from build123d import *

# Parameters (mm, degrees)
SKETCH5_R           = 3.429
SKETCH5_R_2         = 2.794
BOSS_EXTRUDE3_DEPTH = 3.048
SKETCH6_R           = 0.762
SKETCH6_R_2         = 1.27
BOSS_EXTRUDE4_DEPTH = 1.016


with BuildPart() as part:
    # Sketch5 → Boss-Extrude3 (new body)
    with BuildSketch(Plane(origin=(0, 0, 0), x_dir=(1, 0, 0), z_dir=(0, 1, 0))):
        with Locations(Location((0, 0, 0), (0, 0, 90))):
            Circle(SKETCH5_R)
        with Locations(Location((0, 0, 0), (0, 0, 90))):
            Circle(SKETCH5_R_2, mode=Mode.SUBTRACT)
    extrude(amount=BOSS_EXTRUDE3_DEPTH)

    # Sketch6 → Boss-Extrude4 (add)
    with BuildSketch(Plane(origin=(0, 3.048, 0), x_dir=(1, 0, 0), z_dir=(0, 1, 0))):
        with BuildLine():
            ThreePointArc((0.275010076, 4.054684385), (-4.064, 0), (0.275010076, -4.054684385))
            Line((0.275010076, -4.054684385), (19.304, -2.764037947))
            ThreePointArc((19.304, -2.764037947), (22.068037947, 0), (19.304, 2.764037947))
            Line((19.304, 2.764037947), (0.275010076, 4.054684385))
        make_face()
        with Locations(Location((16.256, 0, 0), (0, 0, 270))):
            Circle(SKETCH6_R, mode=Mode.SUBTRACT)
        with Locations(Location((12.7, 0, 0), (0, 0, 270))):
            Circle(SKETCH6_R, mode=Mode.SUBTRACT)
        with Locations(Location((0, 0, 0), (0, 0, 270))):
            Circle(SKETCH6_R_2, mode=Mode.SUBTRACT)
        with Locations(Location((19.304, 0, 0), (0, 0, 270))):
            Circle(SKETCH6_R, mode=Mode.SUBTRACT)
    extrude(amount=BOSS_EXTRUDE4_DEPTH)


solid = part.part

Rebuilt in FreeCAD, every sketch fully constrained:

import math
import FreeCAD as App
import Part
import Sketcher
from FreeCAD import Vector
Q = App.Units.Quantity

doc = App.newDocument("Part")
body = doc.addObject("PartDesign::Body", "Body")

# Sketch on XZ plane
sketch1 = body.newObject("Sketcher::SketchObject", "Sketch")
sketch1.AttachmentSupport = (doc.getObject("XZ_Plane"), [""])
sketch1.MapMode = "FlatFace"
sketch1.addGeometry(Part.Circle(Vector(0, 0, 0), Vector(0, 0, 1), 3.4), False)
sketch1.addGeometry(Part.Circle(Vector(0, 0, 0), Vector(0, 0, 1), 2.8), False)
sketch1.addConstraint(Sketcher.Constraint("Coincident", 0, 3, -1, 1))
sketch1.addConstraint(Sketcher.Constraint("Coincident", 1, 3, -1, 1))
sketch1.addConstraint(Sketcher.Constraint("Diameter", 0, Q("0.27 in")))
sketch1.addConstraint(Sketcher.Constraint("Diameter", 1, Q("0.22 in")))
pad1 = body.newObject("PartDesign::Pad", "Pad")
pad1.Profile = sketch1
pad1.Length = Q("0.12 in")
pad1.Reversed = True

# Sketch on XZ plane
sketch2 = body.newObject("Sketcher::SketchObject", "Sketch001")
sketch2.AttachmentSupport = (doc.getObject("XZ_Plane"), [""])
sketch2.MapMode = "FlatFace"
sketch2.AttachmentOffset = App.Placement(Vector(0, 0, -0.12 * 25.4), App.Rotation())
sketch2.addGeometry(Part.ArcOfCircle(Part.Circle(Vector(0, 0, 0), Vector(0, 0, 1), 4.1), math.radians(86), math.radians(274)), False)
sketch2.addGeometry(Part.LineSegment(Vector(0.3, 4.1, 0), Vector(19.3, 2.8, 0)), False)
sketch2.addGeometry(Part.ArcOfCircle(Part.Circle(Vector(19.3, 0, 0), Vector(0, 0, 1), 2.8), math.radians(-90), math.radians(90)), False)
sketch2.addGeometry(Part.LineSegment(Vector(19.3, -2.8, 0), Vector(0.3, -4.1, 0)), False)
sketch2.addGeometry(Part.Circle(Vector(0, 0, 0), Vector(0, 0, 1), 1.3), False)
sketch2.addGeometry(Part.Circle(Vector(12.7, 0, 0), Vector(0, 0, 1), 0.8), False)
sketch2.addGeometry(Part.Circle(Vector(16.3, 0, 0), Vector(0, 0, 1), 0.8), False)
sketch2.addGeometry(Part.Circle(Vector(19.3, 0, 0), Vector(0, 0, 1), 0.8), False)
sketch2.addConstraint(Sketcher.Constraint("Tangent", 0, 1, 1, 1))
sketch2.addConstraint(Sketcher.Constraint("Coincident", 1, 2, 2, 2))
sketch2.addConstraint(Sketcher.Constraint("Coincident", 2, 1, 3, 1))
sketch2.addConstraint(Sketcher.Constraint("Tangent", 3, 2, 0, 2))
sketch2.addConstraint(Sketcher.Constraint("Coincident", 0, 3, -1, 1))
sketch2.addConstraint(Sketcher.Constraint("Coincident", 4, 3, -1, 1))
sketch2.addConstraint(Sketcher.Constraint("Coincident", 7, 3, 2, 3))
sketch2.addConstraint(Sketcher.Constraint("Equal", 5, 6))
sketch2.addConstraint(Sketcher.Constraint("Equal", 6, 7))
sketch2.addConstraint(Sketcher.Constraint("Symmetric", 1, 2, 2, 1, -1))
sketch2.addConstraint(Sketcher.Constraint("PointOnObject", 5, 3, -1))
sketch2.addConstraint(Sketcher.Constraint("PointOnObject", 6, 3, -1))
sketch2.addConstraint(Sketcher.Constraint("Vertical", 7, 3, 1, 2))
sketch2.addConstraint(Sketcher.Constraint("Diameter", 4, Q("0.1 in")))
sketch2.addConstraint(Sketcher.Constraint("Diameter", 5, Q("0.06 in")))
sketch2.addConstraint(Sketcher.Constraint("Radius", 0, Q("0.16 in")))
sketch2.addConstraint(Sketcher.Constraint("DistanceX", -1, 1, 5, 3, Q("0.5 in")))
sketch2.addConstraint(Sketcher.Constraint("DistanceX", -1, 1, 2, 3, Q("0.76 in")))
sketch2.addConstraint(Sketcher.Constraint("DistanceX", -1, 1, 6, 3, Q("0.64 in")))
sketch2.addConstraint(Sketcher.Constraint("Radius", 2, 2.764038))
pad2 = body.newObject("PartDesign::Pad", "Pad001")
pad2.Profile = sketch2
pad2.Length = Q("0.04 in")
pad2.Reversed = True

doc.recompute()
